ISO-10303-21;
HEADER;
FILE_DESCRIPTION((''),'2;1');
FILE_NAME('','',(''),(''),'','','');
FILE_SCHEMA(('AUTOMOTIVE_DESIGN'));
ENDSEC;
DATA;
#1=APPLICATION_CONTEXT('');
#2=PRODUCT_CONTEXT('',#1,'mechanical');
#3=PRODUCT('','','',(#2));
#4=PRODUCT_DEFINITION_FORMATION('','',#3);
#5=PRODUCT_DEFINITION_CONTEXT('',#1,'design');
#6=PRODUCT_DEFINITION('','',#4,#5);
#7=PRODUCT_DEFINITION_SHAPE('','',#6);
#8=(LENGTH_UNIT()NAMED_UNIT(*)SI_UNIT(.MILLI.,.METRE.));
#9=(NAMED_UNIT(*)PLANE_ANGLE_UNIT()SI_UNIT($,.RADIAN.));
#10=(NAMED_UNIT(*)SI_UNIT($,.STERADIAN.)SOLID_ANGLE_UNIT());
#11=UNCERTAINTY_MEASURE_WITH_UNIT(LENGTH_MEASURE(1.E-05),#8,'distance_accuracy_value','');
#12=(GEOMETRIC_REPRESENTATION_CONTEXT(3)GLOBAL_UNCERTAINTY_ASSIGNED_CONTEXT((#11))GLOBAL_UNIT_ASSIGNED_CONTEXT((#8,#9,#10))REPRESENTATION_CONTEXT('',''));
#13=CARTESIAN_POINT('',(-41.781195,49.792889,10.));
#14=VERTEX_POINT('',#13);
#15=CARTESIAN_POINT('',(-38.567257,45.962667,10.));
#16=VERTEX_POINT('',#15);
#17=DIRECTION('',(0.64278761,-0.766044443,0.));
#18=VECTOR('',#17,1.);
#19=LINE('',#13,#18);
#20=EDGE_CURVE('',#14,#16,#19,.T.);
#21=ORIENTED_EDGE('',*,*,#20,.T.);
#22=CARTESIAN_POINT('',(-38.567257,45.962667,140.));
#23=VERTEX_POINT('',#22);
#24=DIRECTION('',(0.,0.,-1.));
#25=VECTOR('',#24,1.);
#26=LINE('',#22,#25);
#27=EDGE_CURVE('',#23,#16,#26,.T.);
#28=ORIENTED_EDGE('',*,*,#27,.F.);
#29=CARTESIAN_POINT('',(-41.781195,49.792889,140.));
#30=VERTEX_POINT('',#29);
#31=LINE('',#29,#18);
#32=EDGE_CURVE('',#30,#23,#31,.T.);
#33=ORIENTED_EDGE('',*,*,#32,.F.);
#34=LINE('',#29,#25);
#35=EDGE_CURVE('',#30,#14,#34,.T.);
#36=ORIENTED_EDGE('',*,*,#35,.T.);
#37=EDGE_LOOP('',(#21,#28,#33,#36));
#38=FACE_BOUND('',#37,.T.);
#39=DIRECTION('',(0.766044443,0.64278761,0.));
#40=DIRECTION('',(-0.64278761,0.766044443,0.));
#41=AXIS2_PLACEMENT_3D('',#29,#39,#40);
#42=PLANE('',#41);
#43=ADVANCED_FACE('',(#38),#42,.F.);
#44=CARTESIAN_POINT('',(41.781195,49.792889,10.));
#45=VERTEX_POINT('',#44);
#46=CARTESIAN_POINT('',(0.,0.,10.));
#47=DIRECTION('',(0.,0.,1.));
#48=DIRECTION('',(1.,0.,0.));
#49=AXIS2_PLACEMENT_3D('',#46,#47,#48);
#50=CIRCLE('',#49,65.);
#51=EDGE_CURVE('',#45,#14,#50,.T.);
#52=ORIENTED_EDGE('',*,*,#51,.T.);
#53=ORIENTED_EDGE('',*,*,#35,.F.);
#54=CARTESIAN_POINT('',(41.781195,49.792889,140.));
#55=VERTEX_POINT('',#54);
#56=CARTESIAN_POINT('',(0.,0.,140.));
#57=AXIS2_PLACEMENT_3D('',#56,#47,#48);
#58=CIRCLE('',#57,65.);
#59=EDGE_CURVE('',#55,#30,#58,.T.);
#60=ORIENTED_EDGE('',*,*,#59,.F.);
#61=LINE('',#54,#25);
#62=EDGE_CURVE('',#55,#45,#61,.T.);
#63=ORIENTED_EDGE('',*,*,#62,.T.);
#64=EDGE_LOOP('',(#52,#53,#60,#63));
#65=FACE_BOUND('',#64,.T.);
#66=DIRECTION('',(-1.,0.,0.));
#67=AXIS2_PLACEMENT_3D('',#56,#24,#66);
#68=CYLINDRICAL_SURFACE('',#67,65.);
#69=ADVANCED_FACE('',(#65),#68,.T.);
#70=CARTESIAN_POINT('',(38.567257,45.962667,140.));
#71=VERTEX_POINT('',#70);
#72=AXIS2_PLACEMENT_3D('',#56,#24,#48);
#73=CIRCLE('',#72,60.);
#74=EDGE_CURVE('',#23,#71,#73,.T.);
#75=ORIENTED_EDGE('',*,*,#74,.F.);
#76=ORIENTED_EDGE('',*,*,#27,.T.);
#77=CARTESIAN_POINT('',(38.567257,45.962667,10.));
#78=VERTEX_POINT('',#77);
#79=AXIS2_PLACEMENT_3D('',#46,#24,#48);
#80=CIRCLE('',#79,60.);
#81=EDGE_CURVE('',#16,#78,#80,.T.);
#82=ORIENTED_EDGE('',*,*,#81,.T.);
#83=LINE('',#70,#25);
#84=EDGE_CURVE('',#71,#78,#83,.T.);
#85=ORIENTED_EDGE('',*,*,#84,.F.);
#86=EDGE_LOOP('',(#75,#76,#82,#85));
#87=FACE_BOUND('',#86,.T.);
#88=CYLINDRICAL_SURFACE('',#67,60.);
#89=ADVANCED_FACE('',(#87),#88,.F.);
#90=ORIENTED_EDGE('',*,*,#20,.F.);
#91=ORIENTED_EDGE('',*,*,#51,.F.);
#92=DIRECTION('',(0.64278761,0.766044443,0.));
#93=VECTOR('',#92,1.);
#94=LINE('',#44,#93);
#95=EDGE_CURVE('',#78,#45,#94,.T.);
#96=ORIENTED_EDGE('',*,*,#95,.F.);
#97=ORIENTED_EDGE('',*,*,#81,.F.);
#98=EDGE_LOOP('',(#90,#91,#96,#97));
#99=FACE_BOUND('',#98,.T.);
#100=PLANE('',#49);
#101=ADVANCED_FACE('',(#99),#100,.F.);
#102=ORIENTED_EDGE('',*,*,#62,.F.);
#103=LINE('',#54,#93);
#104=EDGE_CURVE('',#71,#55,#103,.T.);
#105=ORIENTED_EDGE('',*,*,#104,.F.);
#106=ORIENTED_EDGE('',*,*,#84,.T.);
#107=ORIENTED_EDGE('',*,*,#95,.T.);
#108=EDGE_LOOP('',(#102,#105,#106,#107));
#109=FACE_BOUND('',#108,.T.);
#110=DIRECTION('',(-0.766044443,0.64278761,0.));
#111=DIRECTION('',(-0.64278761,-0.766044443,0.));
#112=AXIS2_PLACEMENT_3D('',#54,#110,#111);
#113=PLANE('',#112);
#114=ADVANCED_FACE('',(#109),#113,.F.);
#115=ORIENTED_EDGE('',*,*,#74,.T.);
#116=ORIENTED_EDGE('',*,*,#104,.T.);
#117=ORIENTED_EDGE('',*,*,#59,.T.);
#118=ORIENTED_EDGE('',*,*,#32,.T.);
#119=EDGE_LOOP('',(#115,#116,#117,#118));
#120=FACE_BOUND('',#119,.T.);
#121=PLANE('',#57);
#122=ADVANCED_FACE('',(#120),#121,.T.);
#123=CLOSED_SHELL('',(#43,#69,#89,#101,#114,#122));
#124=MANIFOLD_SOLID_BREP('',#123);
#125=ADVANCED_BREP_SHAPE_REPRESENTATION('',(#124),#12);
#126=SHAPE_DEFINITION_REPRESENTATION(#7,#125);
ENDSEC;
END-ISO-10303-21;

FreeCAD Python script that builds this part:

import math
import FreeCAD as App
import Part
import Sketcher
from FreeCAD import Vector
Q = App.Units.Quantity

doc = App.newDocument("Part")
body = doc.addObject("PartDesign::Body", "Body")

# Sketch on XY plane
sketch1 = body.newObject("Sketcher::SketchObject", "Sketch")
sketch1.AttachmentSupport = (doc.getObject("XY_Plane"), [""])
sketch1.MapMode = "FlatFace"
sketch1.addGeometry(Part.LineSegment(Vector(25.711504, 30.641778, 0), Vector(38.567257, 45.962667, 0)), False)
sketch1.addGeometry(Part.ArcOfCircle(Part.Circle(Vector(0, 0, 0), Vector(0, 0, 1), 60), math.radians(50), math.radians(130)), False)
sketch1.addGeometry(Part.LineSegment(Vector(-38.567257, 45.962667, 0), Vector(-25.711504, 30.641778, 0)), False)
sketch1.addGeometry(Part.ArcOfCircle(Part.Circle(Vector(0, 0, 0), Vector(0, 0, 1), 40), math.radians(50), math.radians(130)), False)
sketch1.addConstraint(Sketcher.Constraint("Coincident", 0, 2, 1, 1))
sketch1.addConstraint(Sketcher.Constraint("Coincident", 1, 2, 2, 1))
sketch1.addConstraint(Sketcher.Constraint("Coincident", 2, 2, 3, 2))
sketch1.addConstraint(Sketcher.Constraint("Coincident", 3, 1, 0, 1))
sketch1.addConstraint(Sketcher.Constraint("Coincident", 1, 3, -1, 1))
sketch1.addConstraint(Sketcher.Constraint("Coincident", 3, 3, -1, 1))
sketch1.addConstraint(Sketcher.Constraint("Horizontal", 0, 2, 1, 2))
sketch1.addConstraint(Sketcher.Constraint("Horizontal", 2, 2, 3, 1))
sketch1.addConstraint(Sketcher.Constraint("Radius", 1, 60.0))
sketch1.addConstraint(Sketcher.Constraint("Radius", 3, 40.0))
sketch1.addConstraint(Sketcher.Constraint("Angle", 0, Q("50 deg")))
sketch1.addConstraint(Sketcher.Constraint("DistanceX", 2, 2, 0, 2, 64.278761))
pad1 = body.newObject("PartDesign::Pad", "Pad")
pad1.Profile = sketch1
pad1.Length = 20
pad1.Midplane = True

# Sketch on XY plane
sketch2 = body.newObject("Sketcher::SketchObject", "Sketch001")
sketch2.AttachmentSupport = (doc.getObject("XY_Plane"), [""])
sketch2.MapMode = "FlatFace"
sketch2.AttachmentOffset = App.Placement(Vector(0, 0, 10), App.Rotation())
sketch2.addGeometry(Part.LineSegment(Vector(-38.567257, 45.962667, 0), Vector(-25.711504, 30.641778, 0)), False)
sketch2.addGeometry(Part.ArcOfCircle(Part.Circle(Vector(0, 0, 0), Vector(0, 0, 1), 40), math.radians(50), math.radians(130)), False)
sketch2.addGeometry(Part.LineSegment(Vector(25.711504, 30.641778, 0), Vector(38.567257, 45.962667, 0)), False)
sketch2.addGeometry(Part.ArcOfCircle(Part.Circle(Vector(0, 0, 0), Vector(0, 0, 1), 60), math.radians(50), math.radians(130)), False)
sketch2.addConstraint(Sketcher.Constraint("Coincident", 0, 2, 1, 2))
sketch2.addConstraint(Sketcher.Constraint("Coincident", 1, 1, 2, 1))
sketch2.addConstraint(Sketcher.Constraint("Coincident", 2, 2, 3, 1))
sketch2.addConstraint(Sketcher.Constraint("Coincident", 3, 2, 0, 1))
sketch2.addConstraint(Sketcher.Constraint("Coincident", 1, 3, -1, 1))
sketch2.addConstraint(Sketcher.Constraint("Coincident", 3, 3, -1, 1))
sketch2.addConstraint(Sketcher.Constraint("Horizontal", 0, 2, 1, 1))
sketch2.addConstraint(Sketcher.Constraint("Horizontal", 2, 2, 3, 2))
sketch2.addConstraint(Sketcher.Constraint("Radius", 1, 40.0))
sketch2.addConstraint(Sketcher.Constraint("Radius", 3, 60.0))
sketch2.addConstraint(Sketcher.Constraint("Angle", 0, Q("-50 deg")))
sketch2.addConstraint(Sketcher.Constraint("DistanceX", 0, 2, 1, 1, 51.423009))
pocket1 = body.newObject("PartDesign::Pocket", "Pocket")
pocket1.Profile = sketch2
pocket1.Length = 130
body2 = doc.addObject("PartDesign::Body", "Body001")

# Sketch on XY plane
sketch3 = body2.newObject("Sketcher::SketchObject", "Sketch002")
sketch3.AttachmentSupport = (doc.getObject("XY_Plane001"), [""])
sketch3.MapMode = "FlatFace"
sketch3.AttachmentOffset = App.Placement(Vector(0, 0, 10), App.Rotation())
sketch3.addGeometry(Part.LineSegment(Vector(-41.781195, 49.792889, 0), Vector(-38.567257, 45.962667, 0)), False)
sketch3.addGeometry(Part.ArcOfCircle(Part.Circle(Vector(0, 0, 0), Vector(0, 0, 1), 60), math.radians(50), math.radians(130)), False)
sketch3.addGeometry(Part.LineSegment(Vector(38.567257, 45.962667, 0), Vector(41.781195, 49.792889, 0)), False)
sketch3.addGeometry(Part.ArcOfCircle(Part.Circle(Vector(0, 0, 0), Vector(0, 0, 1), 65), math.radians(50), math.radians(130)), False)
sketch3.addConstraint(Sketcher.Constraint("Coincident", 0, 2, 1, 2))
sketch3.addConstraint(Sketcher.Constraint("Coincident", 1, 1, 2, 1))
sketch3.addConstraint(Sketcher.Constraint("Coincident", 2, 2, 3, 1))
sketch3.addConstraint(Sketcher.Constraint("Coincident", 3, 2, 0, 1))
sketch3.addConstraint(Sketcher.Constraint("Coincident", 1, 3, -1, 1))
sketch3.addConstraint(Sketcher.Constraint("Coincident", 3, 3, -1, 1))
sketch3.addConstraint(Sketcher.Constraint("Horizontal", 0, 2, 1, 1))
sketch3.addConstraint(Sketcher.Constraint("Horizontal", 2, 2, 3, 2))
sketch3.addConstraint(Sketcher.Constraint("Radius", 1, 60.0))
sketch3.addConstraint(Sketcher.Constraint("Radius", 3, 65.0))
sketch3.addConstraint(Sketcher.Constraint("Angle", 0, Q("-50 deg")))
sketch3.addConstraint(Sketcher.Constraint("DistanceY", -1, 1, 2, 2, 49.792889))
pad2 = body2.newObject("PartDesign::Pad", "Pad001")
pad2.Profile = sketch3
pad2.Length = 130

doc.recompute()
